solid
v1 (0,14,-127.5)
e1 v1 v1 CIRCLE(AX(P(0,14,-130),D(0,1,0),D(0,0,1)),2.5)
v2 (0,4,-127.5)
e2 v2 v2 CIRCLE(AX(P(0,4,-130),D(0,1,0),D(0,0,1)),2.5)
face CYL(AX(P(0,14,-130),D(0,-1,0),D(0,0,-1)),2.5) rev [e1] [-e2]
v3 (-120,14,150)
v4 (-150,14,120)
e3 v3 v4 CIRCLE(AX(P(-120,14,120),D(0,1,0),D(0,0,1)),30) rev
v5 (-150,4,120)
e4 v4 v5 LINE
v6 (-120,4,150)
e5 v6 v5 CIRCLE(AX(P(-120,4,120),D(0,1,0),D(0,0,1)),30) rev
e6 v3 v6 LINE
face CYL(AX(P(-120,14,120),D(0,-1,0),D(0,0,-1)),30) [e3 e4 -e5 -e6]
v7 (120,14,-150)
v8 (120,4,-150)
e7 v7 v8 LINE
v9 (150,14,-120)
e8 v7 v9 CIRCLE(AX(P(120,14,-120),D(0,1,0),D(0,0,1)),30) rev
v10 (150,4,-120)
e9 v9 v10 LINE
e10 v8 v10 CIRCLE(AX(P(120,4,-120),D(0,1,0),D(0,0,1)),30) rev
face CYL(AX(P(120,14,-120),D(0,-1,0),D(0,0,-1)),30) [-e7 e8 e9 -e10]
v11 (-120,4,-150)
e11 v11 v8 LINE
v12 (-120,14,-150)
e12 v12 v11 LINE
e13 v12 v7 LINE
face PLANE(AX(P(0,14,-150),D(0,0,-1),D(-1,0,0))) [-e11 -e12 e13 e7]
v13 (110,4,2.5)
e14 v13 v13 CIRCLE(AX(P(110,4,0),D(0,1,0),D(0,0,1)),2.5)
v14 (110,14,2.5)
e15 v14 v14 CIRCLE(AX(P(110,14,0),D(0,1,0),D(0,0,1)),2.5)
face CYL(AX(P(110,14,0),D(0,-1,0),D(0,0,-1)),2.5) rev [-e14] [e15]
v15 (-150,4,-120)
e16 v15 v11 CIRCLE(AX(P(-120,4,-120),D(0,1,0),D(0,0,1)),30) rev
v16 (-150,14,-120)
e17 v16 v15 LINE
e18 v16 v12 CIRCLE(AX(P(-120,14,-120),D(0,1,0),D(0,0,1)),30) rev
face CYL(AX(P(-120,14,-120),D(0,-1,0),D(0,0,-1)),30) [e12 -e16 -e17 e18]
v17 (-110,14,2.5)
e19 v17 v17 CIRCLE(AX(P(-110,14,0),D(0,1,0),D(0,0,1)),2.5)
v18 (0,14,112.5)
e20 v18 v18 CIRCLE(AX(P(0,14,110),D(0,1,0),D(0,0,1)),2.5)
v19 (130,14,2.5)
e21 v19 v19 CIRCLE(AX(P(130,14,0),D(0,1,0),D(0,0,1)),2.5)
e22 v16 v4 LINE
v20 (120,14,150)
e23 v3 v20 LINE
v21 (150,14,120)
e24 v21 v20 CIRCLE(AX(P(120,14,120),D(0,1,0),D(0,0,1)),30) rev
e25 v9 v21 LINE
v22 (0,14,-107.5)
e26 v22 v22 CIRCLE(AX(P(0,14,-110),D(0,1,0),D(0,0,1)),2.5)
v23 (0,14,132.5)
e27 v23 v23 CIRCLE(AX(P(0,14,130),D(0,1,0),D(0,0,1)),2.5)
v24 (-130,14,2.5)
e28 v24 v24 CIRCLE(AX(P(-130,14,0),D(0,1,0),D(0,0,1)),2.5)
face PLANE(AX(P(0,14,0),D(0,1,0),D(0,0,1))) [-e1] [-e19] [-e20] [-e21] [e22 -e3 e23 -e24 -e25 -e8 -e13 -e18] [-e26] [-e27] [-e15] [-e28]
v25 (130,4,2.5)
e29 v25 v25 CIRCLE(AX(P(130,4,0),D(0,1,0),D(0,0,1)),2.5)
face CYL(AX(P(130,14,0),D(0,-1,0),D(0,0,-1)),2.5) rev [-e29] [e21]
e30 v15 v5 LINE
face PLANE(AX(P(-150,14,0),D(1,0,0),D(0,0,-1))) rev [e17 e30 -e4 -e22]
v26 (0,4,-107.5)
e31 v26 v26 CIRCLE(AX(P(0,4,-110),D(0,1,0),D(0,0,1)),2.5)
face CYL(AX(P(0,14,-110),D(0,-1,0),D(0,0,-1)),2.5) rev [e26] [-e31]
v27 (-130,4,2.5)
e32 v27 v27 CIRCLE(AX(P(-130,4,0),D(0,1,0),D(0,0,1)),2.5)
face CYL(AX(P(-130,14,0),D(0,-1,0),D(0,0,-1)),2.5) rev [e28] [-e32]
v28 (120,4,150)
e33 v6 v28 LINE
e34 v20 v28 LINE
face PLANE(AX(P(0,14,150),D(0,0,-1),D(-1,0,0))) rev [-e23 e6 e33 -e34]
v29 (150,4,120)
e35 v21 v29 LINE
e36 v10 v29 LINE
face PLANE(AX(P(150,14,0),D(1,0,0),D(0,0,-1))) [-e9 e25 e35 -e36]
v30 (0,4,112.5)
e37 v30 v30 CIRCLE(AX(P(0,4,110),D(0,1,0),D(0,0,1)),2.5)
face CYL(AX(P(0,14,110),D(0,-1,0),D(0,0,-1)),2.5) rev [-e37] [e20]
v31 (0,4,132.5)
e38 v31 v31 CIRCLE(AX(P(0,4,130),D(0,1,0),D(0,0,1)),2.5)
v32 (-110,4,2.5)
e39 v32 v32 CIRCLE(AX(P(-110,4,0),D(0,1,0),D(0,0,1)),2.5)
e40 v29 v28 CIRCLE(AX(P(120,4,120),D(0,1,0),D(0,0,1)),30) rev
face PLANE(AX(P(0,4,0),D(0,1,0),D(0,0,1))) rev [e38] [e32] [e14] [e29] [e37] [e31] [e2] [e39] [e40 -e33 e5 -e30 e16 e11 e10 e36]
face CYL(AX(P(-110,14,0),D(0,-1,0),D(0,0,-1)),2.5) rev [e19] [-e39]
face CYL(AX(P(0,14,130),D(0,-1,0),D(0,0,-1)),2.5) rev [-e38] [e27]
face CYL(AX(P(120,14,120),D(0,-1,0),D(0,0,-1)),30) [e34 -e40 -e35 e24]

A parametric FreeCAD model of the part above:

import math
import FreeCAD as App
import Part
import Sketcher
Q = App.Units.Quantity


def add_polygon(sketch, points):
    """Adds a closed chain of lines whose ends are joined by coincident constraints."""
    first, n = sketch.GeometryCount, len(points)
    for a, b in zip(points, points[1:] + points[:1]):
        sketch.addGeometry(Part.LineSegment(App.Vector(*a, 0), App.Vector(*b, 0)), False)
    for i in range(n):
        sketch.addConstraint(Sketcher.Constraint("Coincident", first + i, 2, first + (i + 1) % n, 1))

doc = App.newDocument("Part")
body = doc.addObject("PartDesign::Body", "Body")

# Sketch on XZ plane
sketch1 = body.newObject("Sketcher::SketchObject", "Sketch")
sketch1.AttachmentSupport = (doc.getObject("XZ_Plane"), [""])
sketch1.MapMode = "FlatFace"
sketch1.addGeometry(Part.ArcOfCircle(Part.Circle(App.Vector(-60, 60, 0), App.Vector(0, 0, 1), 15), math.radians(90), math.radians(180)), False)
sketch1.addGeometry(Part.LineSegment(App.Vector(-60, 75, 0), App.Vector(60, 75, 0)), False)
sketch1.addGeometry(Part.ArcOfCircle(Part.Circle(App.Vector(60, 60, 0), App.Vector(0, 0, 1), 15), math.radians(0), math.radians(90)), False)
sketch1.addGeometry(Part.LineSegment(App.Vector(75, 60, 0), App.Vector(75, -60, 0)), False)
sketch1.addGeometry(Part.ArcOfCircle(Part.Circle(App.Vector(60, -60, 0), App.Vector(0, 0, 1), 15), math.radians(-90), math.radians(0)), False)
sketch1.addGeometry(Part.LineSegment(App.Vector(60, -75, 0), App.Vector(-60, -75, 0)), False)
sketch1.addGeometry(Part.ArcOfCircle(Part.Circle(App.Vector(-60, -60, 0), App.Vector(0, 0, 1), 15), math.radians(180), math.radians(270)), False)
sketch1.addGeometry(Part.LineSegment(App.Vector(-75, -60, 0), App.Vector(-75, 60, 0)), False)
sketch1.addConstraint(Sketcher.Constraint("Tangent", 0, 1, 1, 1))
sketch1.addConstraint(Sketcher.Constraint("Tangent", 1, 2, 2, 2))
sketch1.addConstraint(Sketcher.Constraint("Tangent", 2, 1, 3, 1))
sketch1.addConstraint(Sketcher.Constraint("Tangent", 3, 2, 4, 2))
sketch1.addConstraint(Sketcher.Constraint("Tangent", 4, 1, 5, 1))
sketch1.addConstraint(Sketcher.Constraint("Tangent", 5, 2, 6, 2))
sketch1.addConstraint(Sketcher.Constraint("Tangent", 6, 1, 7, 1))
sketch1.addConstraint(Sketcher.Constraint("Tangent", 7, 2, 0, 2))
sketch1.addConstraint(Sketcher.Constraint("Horizontal", 1))
sketch1.addConstraint(Sketcher.Constraint("Vertical", 3))
sketch1.addConstraint(Sketcher.Constraint("Horizontal", 5))
sketch1.addConstraint(Sketcher.Constraint("Vertical", 7))
sketch1.addConstraint(Sketcher.Constraint("Equal", 0, 2))
sketch1.addConstraint(Sketcher.Constraint("Equal", 2, 4))
sketch1.addConstraint(Sketcher.Constraint("Equal", 4, 6))
sketch1.addConstraint(Sketcher.Constraint("Symmetric", 0, 3, 4, 3, -1, 1))
sketch1.addConstraint(Sketcher.Constraint("Equal", 5, 3))
sketch1.addConstraint(Sketcher.Constraint("Radius", 0, Q("15 mm")))
sketch1.addConstraint(Sketcher.Constraint("DistanceX", 1, 1, 1, 2, Q("120 mm")))
pad1 = body.newObject("PartDesign::Pad", "Pad")
pad1.Profile = sketch1
pad1.Length = 4
pad1.Reversed = True

# Sketch on XZ plane
sketch2 = body.newObject("Sketcher::SketchObject", "Sketch001")
sketch2.AttachmentSupport = (doc.getObject("XZ_Plane"), [""])
sketch2.MapMode = "FlatFace"
sketch2.AttachmentOffset = App.Placement(App.Vector(0, 0, -14), App.Rotation())
sketch2.addGeometry(Part.LineSegment(App.Vector(60, -76, 0), App.Vector(-60, -76, 0)), False)
sketch2.addGeometry(Part.ArcOfCircle(Part.Circle(App.Vector(-60, -60, 0), App.Vector(0, 0, 1), 16), math.radians(180), math.radians(270)), False)
sketch2.addGeometry(Part.LineSegment(App.Vector(-76, -60, 0), App.Vector(-76, 60, 0)), False)
sketch2.addGeometry(Part.ArcOfCircle(Part.Circle(App.Vector(-60, 60, 0), App.Vector(0, 0, 1), 16), math.radians(90), math.radians(180)), False)
sketch2.addGeometry(Part.LineSegment(App.Vector(-60, 76, 0), App.Vector(60, 76, 0)), False)
sketch2.addGeometry(Part.ArcOfCircle(Part.Circle(App.Vector(60, 60, 0), App.Vector(0, 0, 1), 16), math.radians(0), math.radians(90)), False)
sketch2.addGeometry(Part.LineSegment(App.Vector(76, 60, 0), App.Vector(76, -60, 0)), False)
sketch2.addGeometry(Part.ArcOfCircle(Part.Circle(App.Vector(60, -60, 0), App.Vector(0, 0, 1), 16), math.radians(-90), math.radians(0)), False)
sketch2.addConstraint(Sketcher.Constraint("Tangent", 0, 2, 1, 2))
sketch2.addConstraint(Sketcher.Constraint("Tangent", 1, 1, 2, 1))
sketch2.addConstraint(Sketcher.Constraint("Tangent", 2, 2, 3, 2))
sketch2.addConstraint(Sketcher.Constraint("Tangent", 3, 1, 4, 1))
sketch2.addConstraint(Sketcher.Constraint("Tangent", 4, 2, 5, 2))
sketch2.addConstraint(Sketcher.Constraint("Tangent", 5, 1, 6, 1))
sketch2.addConstraint(Sketcher.Constraint("Tangent", 6, 2, 7, 2))
sketch2.addConstraint(Sketcher.Constraint("Tangent", 7, 1, 0, 1))
sketch2.addConstraint(Sketcher.Constraint("Horizontal", 0))
sketch2.addConstraint(Sketcher.Constraint("Vertical", 2))
sketch2.addConstraint(Sketcher.Constraint("Horizontal", 4))
sketch2.addConstraint(Sketcher.Constraint("Vertical", 6))
sketch2.addConstraint(Sketcher.Constraint("Equal", 1, 3))
sketch2.addConstraint(Sketcher.Constraint("Equal", 3, 5))
sketch2.addConstraint(Sketcher.Constraint("Equal", 5, 7))
sketch2.addConstraint(Sketcher.Constraint("Symmetric", 1, 3, 5, 3, -1, 1))
sketch2.addConstraint(Sketcher.Constraint("Equal", 4, 2))
sketch2.addConstraint(Sketcher.Constraint("Radius", 1, Q("16 mm")))
sketch2.addConstraint(Sketcher.Constraint("DistanceX", 0, 2, 0, 1, Q("120 mm")))
pocket1 = body.newObject("PartDesign::Pocket", "Pocket")
pocket1.Profile = sketch2
pocket1.Length = 52
pocket1.Reversed = True
body2 = doc.addObject("PartDesign::Body", "Body001")

# Sketch on XZ plane
sketch3 = body2.newObject("Sketcher::SketchObject", "Sketch002")
sketch3.AttachmentSupport = (doc.getObject("XZ_Plane001"), [""])
sketch3.MapMode = "FlatFace"
sketch3.AttachmentOffset = App.Placement(App.Vector(0, 0, -4), App.Rotation())
sketch3.addGeometry(Part.ArcOfCircle(Part.Circle(App.Vector(120, 120, 0), App.Vector(0, 0, 1), 30), math.radians(0), math.radians(90)), False)
sketch3.addGeometry(Part.LineSegment(App.Vector(150, 120, 0), App.Vector(150, -120, 0)), False)
sketch3.addGeometry(Part.ArcOfCircle(Part.Circle(App.Vector(120, -120, 0), App.Vector(0, 0, 1), 30), math.radians(-90), math.radians(0)), False)
sketch3.addGeometry(Part.LineSegment(App.Vector(120, -150, 0), App.Vector(-120, -150, 0)), False)
sketch3.addGeometry(Part.ArcOfCircle(Part.Circle(App.Vector(-120, -120, 0), App.Vector(0, 0, 1), 30), math.radians(180), math.radians(270)), False)
sketch3.addGeometry(Part.LineSegment(App.Vector(-150, -120, 0), App.Vector(-150, 120, 0)), False)
sketch3.addGeometry(Part.ArcOfCircle(Part.Circle(App.Vector(-120, 120, 0), App.Vector(0, 0, 1), 30), math.radians(90), math.radians(180)), False)
sketch3.addGeometry(Part.LineSegment(App.Vector(-120, 150, 0), App.Vector(120, 150, 0)), False)
sketch3.addGeometry(Part.Circle(App.Vector(0, 130, 0), App.Vector(0, 0, 1), 2.5), False)
sketch3.addGeometry(Part.Circle(App.Vector(0, 110, 0), App.Vector(0, 0, 1), 2.5), False)
sketch3.addGeometry(Part.Circle(App.Vector(130, 0, 0), App.Vector(0, 0, 1), 2.5), False)
sketch3.addGeometry(Part.Circle(App.Vector(110, 0, 0), App.Vector(0, 0, 1), 2.5), False)
sketch3.addGeometry(Part.LineSegment(App.Vector(-76, 60, 0), App.Vector(-76, -60, 0)), False)
sketch3.addGeometry(Part.ArcOfCircle(Part.Circle(App.Vector(-60, -60, 0), App.Vector(0, 0, 1), 16), math.radians(180), math.radians(270)), False)
sketch3.addGeometry(Part.LineSegment(App.Vector(-60, -76, 0), App.Vector(60, -76, 0)), False)
sketch3.addGeometry(Part.ArcOfCircle(Part.Circle(App.Vector(60, -60, 0), App.Vector(0, 0, 1), 16), math.radians(-90), math.radians(0)), False)
sketch3.addGeometry(Part.LineSegment(App.Vector(76, -60, 0), App.Vector(76, 60, 0)), False)
sketch3.addGeometry(Part.ArcOfCircle(Part.Circle(App.Vector(60, 60, 0), App.Vector(0, 0, 1), 16), math.radians(0), math.radians(90)), False)
sketch3.addGeometry(Part.LineSegment(App.Vector(60, 76, 0), App.Vector(-60, 76, 0)), False)
sketch3.addGeometry(Part.ArcOfCircle(Part.Circle(App.Vector(-60, 60, 0), App.Vector(0, 0, 1), 16), math.radians(90), math.radians(180)), False)
sketch3.addGeometry(Part.Circle(App.Vector(-110, 0, 0), App.Vector(0, 0, 1), 2.5), False)
sketch3.addGeometry(Part.Circle(App.Vector(-130, 0, 0), App.Vector(0, 0, 1), 2.5), False)
sketch3.addGeometry(Part.Circle(App.Vector(0, -110, 0), App.Vector(0, 0, 1), 2.5), False)
sketch3.addGeometry(Part.Circle(App.Vector(0, -130, 0), App.Vector(0, 0, 1), 2.5), False)
sketch3.addConstraint(Sketcher.Constraint("Tangent", 0, 1, 1, 1))
sketch3.addConstraint(Sketcher.Constraint("Tangent", 1, 2, 2, 2))
sketch3.addConstraint(Sketcher.Constraint("Tangent", 2, 1, 3, 1))
sketch3.addConstraint(Sketcher.Constraint("Tangent", 3, 2, 4, 2))
sketch3.addConstraint(Sketcher.Constraint("Tangent", 4, 1, 5, 1))
sketch3.addConstraint(Sketcher.Constraint("Tangent", 5, 2, 6, 2))
sketch3.addConstraint(Sketcher.Constraint("Tangent", 6, 1, 7, 1))
sketch3.addConstraint(Sketcher.Constraint("Tangent", 7, 2, 0, 2))
sketch3.addConstraint(Sketcher.Constraint("Tangent", 12, 2, 13, 1))
sketch3.addConstraint(Sketcher.Constraint("Tangent", 13, 2, 14, 1))
sketch3.addConstraint(Sketcher.Constraint("Tangent", 14, 2, 15, 1))
sketch3.addConstraint(Sketcher.Constraint("Tangent", 15, 2, 16, 1))
sketch3.addConstraint(Sketcher.Constraint("Tangent", 16, 2, 17, 1))
sketch3.addConstraint(Sketcher.Constraint("Tangent", 17, 2, 18, 1))
sketch3.addConstraint(Sketcher.Constraint("Tangent", 18, 2, 19, 1))
sketch3.addConstraint(Sketcher.Constraint("Tangent", 19, 2, 12, 1))
sketch3.addConstraint(Sketcher.Constraint("Vertical", 1))
sketch3.addConstraint(Sketcher.Constraint("Horizontal", 3))
sketch3.addConstraint(Sketcher.Constraint("Vertical", 5))
sketch3.addConstraint(Sketcher.Constraint("Horizontal", 7))
sketch3.addConstraint(Sketcher.Constraint("Vertical", 12))
sketch3.addConstraint(Sketcher.Constraint("Horizontal", 14))
sketch3.addConstraint(Sketcher.Constraint("Vertical", 16))
sketch3.addConstraint(Sketcher.Constraint("Horizontal", 18))
sketch3.addConstraint(Sketcher.Constraint("Equal", 0, 2))
sketch3.addConstraint(Sketcher.Constraint("Equal", 2, 4))
sketch3.addConstraint(Sketcher.Constraint("Equal", 4, 6))
sketch3.addConstraint(Sketcher.Constraint("Equal", 8, 9))
sketch3.addConstraint(Sketcher.Constraint("Equal", 9, 10))
sketch3.addConstraint(Sketcher.Constraint("Equal", 10, 11))
sketch3.addConstraint(Sketcher.Constraint("Equal", 13, 15))
sketch3.addConstraint(Sketcher.Constraint("Equal", 15, 17))
sketch3.addConstraint(Sketcher.Constraint("Equal", 17, 19))
sketch3.addConstraint(Sketcher.Constraint("Equal", 11, 20))
sketch3.addConstraint(Sketcher.Constraint("Equal", 20, 21))
sketch3.addConstraint(Sketcher.Constraint("Equal", 21, 22))
sketch3.addConstraint(Sketcher.Constraint("Equal", 22, 23))
sketch3.addConstraint(Sketcher.Constraint("Symmetric", 0, 3, 4, 3, -1, 1))
sketch3.addConstraint(Sketcher.Constraint("Symmetric", 13, 3, 17, 3, -1, 1))
sketch3.addConstraint(Sketcher.Constraint("Symmetric", 11, 3, 20, 3, -1, 1))
sketch3.addConstraint(Sketcher.Constraint("Symmetric", 10, 3, 21, 3, -1, 1))
sketch3.addConstraint(Sketcher.Constraint("Symmetric", 9, 3, 22, 3, -1, 1))
sketch3.addConstraint(Sketcher.Constraint("Symmetric", 8, 3, 23, 3, -1, 1))
sketch3.addConstraint(Sketcher.Constraint("PointOnObject", 8, 3, -2))
sketch3.addConstraint(Sketcher.Constraint("PointOnObject", 9, 3, -2))
sketch3.addConstraint(Sketcher.Constraint("PointOnObject", 10, 3, -1))
sketch3.addConstraint(Sketcher.Constraint("PointOnObject", 11, 3, -1))
sketch3.addConstraint(Sketcher.Constraint("Equal", 7, 1))
sketch3.addConstraint(Sketcher.Constraint("Equal", 18, 12))
sketch3.addConstraint(Sketcher.Constraint("Diameter", 8, Q("5 mm")))
sketch3.addConstraint(Sketcher.Constraint("Radius", 0, Q("30 mm")))
sketch3.addConstraint(Sketcher.Constraint("Radius", 13, Q("16 mm")))
sketch3.addConstraint(Sketcher.Constraint("DistanceX", 3, 2, 3, 1, Q("240 mm")))
sketch3.addConstraint(Sketcher.Constraint("DistanceX", 14, 1, 14, 2, Q("120 mm")))
sketch3.addConstraint(Sketcher.Constraint("DistanceY", -1, 1, 8, 3, Q("130 mm")))
sketch3.addConstraint(Sketcher.Constraint("DistanceY", -1, 1, 9, 3, Q("110 mm")))
sketch3.addConstraint(Sketcher.Constraint("DistanceX", -1, 1, 10, 3, Q("130 mm")))
sketch3.addConstraint(Sketcher.Constraint("DistanceX", -1, 1, 11, 3, Q("110 mm")))
pad2 = body2.newObject("PartDesign::Pad", "Pad001")
pad2.Profile = sketch3
pad2.Length = 10
pad2.Reversed = True

# Sketch on XZ plane
sketch4 = body2.newObject("Sketcher::SketchObject", "Sketch003")
sketch4.AttachmentSupport = (doc.getObject("XZ_Plane001"), [""])
sketch4.MapMode = "FlatFace"
sketch4.AttachmentOffset = App.Placement(App.Vector(0, 0, -14), App.Rotation())
add_polygon(sketch4, [(-86, -91), (-86, 91), (86, 91), (86, -91)])  # lines 0-3
sketch4.addConstraint(Sketcher.Constraint("Vertical", 0))
sketch4.addConstraint(Sketcher.Constraint("Horizontal", 1))
sketch4.addConstraint(Sketcher.Constraint("Vertical", 2))
sketch4.addConstraint(Sketcher.Constraint("Horizontal", 3))
sketch4.addConstraint(Sketcher.Constraint("Symmetric", 0, 2, 2, 2, -1, 1))
sketch4.addConstraint(Sketcher.Constraint("DistanceX", 1, 1, 1, 2, Q("171.868784 mm")))
sketch4.addConstraint(Sketcher.Constraint("DistanceY", 0, 1, 0, 2, Q("181.506286 mm")))
pad3 = body2.newObject("PartDesign::Pad", "Pad002")
pad3.Profile = sketch4
pad3.Length = 10

doc.recompute()
